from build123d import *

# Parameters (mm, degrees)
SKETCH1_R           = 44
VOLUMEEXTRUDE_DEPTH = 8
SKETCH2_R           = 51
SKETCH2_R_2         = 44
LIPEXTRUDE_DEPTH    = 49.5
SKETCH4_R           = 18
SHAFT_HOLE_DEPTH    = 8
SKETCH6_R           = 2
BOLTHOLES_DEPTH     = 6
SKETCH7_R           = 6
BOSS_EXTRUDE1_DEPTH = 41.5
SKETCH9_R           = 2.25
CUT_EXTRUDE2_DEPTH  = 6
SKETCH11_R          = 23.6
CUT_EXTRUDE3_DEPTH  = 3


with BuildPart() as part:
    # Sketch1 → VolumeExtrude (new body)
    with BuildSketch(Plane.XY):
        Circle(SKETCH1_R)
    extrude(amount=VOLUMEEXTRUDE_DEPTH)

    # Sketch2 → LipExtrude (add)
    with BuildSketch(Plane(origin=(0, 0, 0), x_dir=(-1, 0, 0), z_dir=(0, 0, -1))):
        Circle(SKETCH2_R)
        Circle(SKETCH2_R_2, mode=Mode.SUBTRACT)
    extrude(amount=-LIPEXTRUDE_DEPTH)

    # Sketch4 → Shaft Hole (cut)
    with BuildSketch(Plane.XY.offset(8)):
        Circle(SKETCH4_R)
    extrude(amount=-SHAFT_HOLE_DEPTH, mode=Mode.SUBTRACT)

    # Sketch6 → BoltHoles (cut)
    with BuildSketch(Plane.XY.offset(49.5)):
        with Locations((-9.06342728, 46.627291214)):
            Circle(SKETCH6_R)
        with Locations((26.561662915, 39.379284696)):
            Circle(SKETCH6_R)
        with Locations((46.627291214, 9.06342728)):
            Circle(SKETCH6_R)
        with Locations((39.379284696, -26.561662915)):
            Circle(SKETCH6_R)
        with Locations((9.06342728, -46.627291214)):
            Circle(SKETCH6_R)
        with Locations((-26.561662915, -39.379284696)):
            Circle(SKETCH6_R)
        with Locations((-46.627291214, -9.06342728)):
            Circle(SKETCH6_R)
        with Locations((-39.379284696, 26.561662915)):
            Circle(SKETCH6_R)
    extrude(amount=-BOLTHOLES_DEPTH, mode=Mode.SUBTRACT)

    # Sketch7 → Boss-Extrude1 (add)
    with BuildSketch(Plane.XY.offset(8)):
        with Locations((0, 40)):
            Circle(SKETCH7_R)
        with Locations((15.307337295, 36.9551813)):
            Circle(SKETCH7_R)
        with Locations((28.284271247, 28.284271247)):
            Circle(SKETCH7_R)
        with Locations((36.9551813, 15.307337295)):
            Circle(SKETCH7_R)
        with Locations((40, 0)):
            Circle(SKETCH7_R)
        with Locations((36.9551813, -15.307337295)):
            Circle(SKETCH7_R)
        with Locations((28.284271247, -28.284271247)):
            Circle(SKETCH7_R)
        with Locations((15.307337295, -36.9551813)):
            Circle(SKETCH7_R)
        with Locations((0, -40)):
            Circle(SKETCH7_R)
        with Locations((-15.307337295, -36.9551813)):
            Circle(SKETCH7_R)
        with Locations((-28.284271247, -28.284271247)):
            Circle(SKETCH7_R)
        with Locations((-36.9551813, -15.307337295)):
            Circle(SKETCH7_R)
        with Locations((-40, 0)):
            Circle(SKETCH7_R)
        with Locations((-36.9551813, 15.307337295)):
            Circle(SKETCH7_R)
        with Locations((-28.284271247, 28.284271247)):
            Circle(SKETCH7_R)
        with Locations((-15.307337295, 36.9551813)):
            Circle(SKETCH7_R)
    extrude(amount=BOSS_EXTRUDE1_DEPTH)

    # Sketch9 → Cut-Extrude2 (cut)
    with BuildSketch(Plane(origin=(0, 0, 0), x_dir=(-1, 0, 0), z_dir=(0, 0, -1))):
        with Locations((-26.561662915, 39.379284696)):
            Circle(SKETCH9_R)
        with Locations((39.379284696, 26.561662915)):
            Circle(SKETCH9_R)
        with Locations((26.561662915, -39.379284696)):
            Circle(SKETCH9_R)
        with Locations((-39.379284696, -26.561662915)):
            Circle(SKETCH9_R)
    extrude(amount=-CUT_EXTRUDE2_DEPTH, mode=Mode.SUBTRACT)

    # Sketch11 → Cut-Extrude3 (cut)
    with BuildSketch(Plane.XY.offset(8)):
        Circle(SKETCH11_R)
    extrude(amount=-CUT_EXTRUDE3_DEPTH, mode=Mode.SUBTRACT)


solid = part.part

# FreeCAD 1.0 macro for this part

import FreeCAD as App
import Part
import Sketcher

doc = App.newDocument("Part")
params = doc.addObject("Spreadsheet::Sheet", "Params")
for row, (alias, value) in enumerate([
    ("sketch1_diameter", "88 mm"),
    ("pad1_length", "8 mm"),
    ("sketch2_diameter", "102 mm"),
    ("sketch2_diameter2", "88 mm"),
    ("pad2_length", "49.5 mm"),
    ("sketch3_diameter", "36 mm"),
    ("pocket1_length", "8 mm"),
    ("sketch4_diameter", "4 mm"),
    ("pocket2_length", "6 mm"),
    ("sketch5_diameter", "12 mm"),
    ("pad3_length", "41.5 mm"),
    ("sketch6_diameter", "4.5 mm"),
    ("pocket3_length", "6 mm"),
    ("sketch7_diameter", "47.2 mm"),
    ("pocket4_length", "3 mm"),
], start=1):
    params.set(f"A{row}", alias)
    params.set(f"B{row}", "=" + value)
    params.setAlias(f"B{row}", alias)

body = doc.addObject("PartDesign::Body", "Body")

# Sketch on XY plane
sketch1 = body.newObject("Sketcher::SketchObject", "Sketch")
sketch1.AttachmentSupport = (doc.getObject("XY_Plane"), [""])
sketch1.MapMode = "FlatFace"
sketch1.addGeometry(Part.Circle(App.Vector(0, 0, 0), App.Vector(0, 0, 1), 44), False)
sketch1.addConstraint([
    Sketcher.Constraint("Coincident", 0, 3, -1, 1),
    Sketcher.Constraint("Diameter", 0, 88.0),
])
sketch1.setExpression("Constraints[1]", "Params.sketch1_diameter")
pad1 = body.newObject("PartDesign::Pad", "Pad")
pad1.Profile = sketch1
pad1.setExpression("Length", "Params.pad1_length")

# Sketch on XY plane
sketch2 = body.newObject("Sketcher::SketchObject", "Sketch001")
sketch2.AttachmentSupport = (doc.getObject("XY_Plane"), [""])
sketch2.MapMode = "FlatFace"
sketch2.addGeometry([
    Part.Circle(App.Vector(0, 0, 0), App.Vector(0, 0, 1), 51),
    Part.Circle(App.Vector(0, 0, 0), App.Vector(0, 0, 1), 44),
], False)
sketch2.addConstraint([
    Sketcher.Constraint("Coincident", 0, 3, -1, 1),
    Sketcher.Constraint("Coincident", 1, 3, -1, 1),
    Sketcher.Constraint("Diameter", 0, 102.0),
    Sketcher.Constraint("Diameter", 1, 88.0),
])
sketch2.setExpression("Constraints[2]", "Params.sketch2_diameter")
sketch2.setExpression("Constraints[3]", "Params.sketch2_diameter2")
pad2 = body.newObject("PartDesign::Pad", "Pad001")
pad2.Profile = sketch2
pad2.setExpression("Length", "Params.pad2_length")

# Sketch on XY plane
sketch3 = body.newObject("Sketcher::SketchObject", "Sketch002")
sketch3.AttachmentSupport = (doc.getObject("XY_Plane"), [""])
sketch3.MapMode = "FlatFace"
sketch3.AttachmentOffset = App.Placement(App.Vector(0, 0, 8), App.Rotation())
sketch3.addGeometry(Part.Circle(App.Vector(0, 0, 0), App.Vector(0, 0, 1), 18), False)
sketch3.addConstraint([
    Sketcher.Constraint("Coincident", 0, 3, -1, 1),
    Sketcher.Constraint("Diameter", 0, 36.0),
])
sketch3.setExpression("Constraints[1]", "Params.sketch3_diameter")
pocket1 = body.newObject("PartDesign::Pocket", "Pocket")
pocket1.Profile = sketch3
pocket1.setExpression("Length", "Params.pocket1_length")

# Sketch on XY plane
sketch4 = body.newObject("Sketcher::SketchObject", "Sketch003")
sketch4.AttachmentSupport = (doc.getObject("XY_Plane"), [""])
sketch4.MapMode = "FlatFace"
sketch4.AttachmentOffset = App.Placement(App.Vector(0, 0, 49.5), App.Rotation())
sketch4.addGeometry([
    Part.Circle(App.Vector(-9.1, 46.6, 0), App.Vector(0, 0, 1), 2),  # 0
    Part.Circle(App.Vector(26.6, 39.4, 0), App.Vector(0, 0, 1), 2),  # 1
    Part.Circle(App.Vector(46.6, 9.1, 0), App.Vector(0, 0, 1), 2),  # 2
    Part.Circle(App.Vector(39.4, -26.6, 0), App.Vector(0, 0, 1), 2),  # 3
    Part.Circle(App.Vector(9.1, -46.6, 0), App.Vector(0, 0, 1), 2),  # 4
    Part.Circle(App.Vector(-26.6, -39.4, 0), App.Vector(0, 0, 1), 2),  # 5
    Part.Circle(App.Vector(-46.6, -9.1, 0), App.Vector(0, 0, 1), 2),  # 6
    Part.Circle(App.Vector(-39.4, 26.6, 0), App.Vector(0, 0, 1), 2),  # 7
], False)
sketch4.addConstraint([
    Sketcher.Constraint("Equal", 0, 1),
    Sketcher.Constraint("Equal", 1, 2),
    Sketcher.Constraint("Equal", 2, 3),
    Sketcher.Constraint("Equal", 3, 4),
    Sketcher.Constraint("Equal", 4, 5),
    Sketcher.Constraint("Equal", 5, 6),
    Sketcher.Constraint("Equal", 6, 7),
    Sketcher.Constraint("Symmetric", 0, 3, 4, 3, -1, 1),
    Sketcher.Constraint("Symmetric", 1, 3, 5, 3, -1, 1),
    Sketcher.Constraint("Symmetric", 2, 3, 6, 3, -1, 1),
    Sketcher.Constraint("Symmetric", 3, 3, 7, 3, -1, 1),
    Sketcher.Constraint("Diameter", 0, 4.0),
    Sketcher.Constraint("DistanceY", -1, 1, 0, 3, 46.627291),
    Sketcher.Constraint("DistanceX", -1, 1, 2, 3, 46.627291),
    Sketcher.Constraint("DistanceX", 0, 3, 1, 3, 35.62509),
    Sketcher.Constraint("DistanceX", 1, 3, 2, 3, 20.065628),
    Sketcher.Constraint("DistanceY", 3, 3, 2, 3, 35.62509),
    Sketcher.Constraint("DistanceX", 1, 3, 3, 3, 12.817622),
    Sketcher.Constraint("DistanceY", 4, 3, 3, 3, 20.065628),
    Sketcher.Constraint("DistanceY", 5, 3, 3, 3, 12.817622),
])
sketch4.setExpression("Constraints[11]", "Params.sketch4_diameter")
pocket2 = body.newObject("PartDesign::Pocket", "Pocket001")
pocket2.Profile = sketch4
pocket2.setExpression("Length", "Params.pocket2_length")

# Sketch on XY plane
sketch5 = body.newObject("Sketcher::SketchObject", "Sketch004")
sketch5.AttachmentSupport = (doc.getObject("XY_Plane"), [""])
sketch5.MapMode = "FlatFace"
sketch5.AttachmentOffset = App.Placement(App.Vector(0, 0, 8), App.Rotation())
sketch5.addGeometry([
    Part.Circle(App.Vector(0, 40, 0), App.Vector(0, 0, 1), 6),  # 0
    Part.Circle(App.Vector(15, 37, 0), App.Vector(0, 0, 1), 6),  # 1
    Part.Circle(App.Vector(28, 28, 0), App.Vector(0, 0, 1), 6),  # 2
    Part.Circle(App.Vector(37, 15, 0), App.Vector(0, 0, 1), 6),  # 3
    Part.Circle(App.Vector(40, 0, 0), App.Vector(0, 0, 1), 6),  # 4
    Part.Circle(App.Vector(37, -15, 0), App.Vector(0, 0, 1), 6),  # 5
    Part.Circle(App.Vector(28, -28, 0), App.Vector(0, 0, 1), 6),  # 6
    Part.Circle(App.Vector(15, -37, 0), App.Vector(0, 0, 1), 6),  # 7
    Part.Circle(App.Vector(0, -40, 0), App.Vector(0, 0, 1), 6),  # 8
    Part.Circle(App.Vector(-15, -37, 0), App.Vector(0, 0, 1), 6),  # 9
    Part.Circle(App.Vector(-28, -28, 0), App.Vector(0, 0, 1), 6),  # 10
    Part.Circle(App.Vector(-37, -15, 0), App.Vector(0, 0, 1), 6),  # 11
    Part.Circle(App.Vector(-40, 0, 0), App.Vector(0, 0, 1), 6),  # 12
    Part.Circle(App.Vector(-37, 15, 0), App.Vector(0, 0, 1), 6),  # 13
    Part.Circle(App.Vector(-28, 28, 0), App.Vector(0, 0, 1), 6),  # 14
    Part.Circle(App.Vector(-15, 37, 0), App.Vector(0, 0, 1), 6),  # 15
], False)
sketch5.addConstraint([
    Sketcher.Constraint("Equal", 0, 1),
    Sketcher.Constraint("Equal", 1, 2),
    Sketcher.Constraint("Equal", 2, 3),
    Sketcher.Constraint("Equal", 3, 4),
    Sketcher.Constraint("Equal", 4, 5),
    Sketcher.Constraint("Equal", 5, 6),
    Sketcher.Constraint("Equal", 6, 7),
    Sketcher.Constraint("Equal", 7, 8),
    Sketcher.Constraint("Equal", 8, 9),
    Sketcher.Constraint("Equal", 9, 10),
    Sketcher.Constraint("Equal", 10, 11),
    Sketcher.Constraint("Equal", 11, 12),
    Sketcher.Constraint("Equal", 12, 13),
    Sketcher.Constraint("Equal", 13, 14),
    Sketcher.Constraint("Equal", 14, 15),
    Sketcher.Constraint("Symmetric", 0, 3, 8, 3, -1, 1),
    Sketcher.Constraint("Symmetric", 1, 3, 9, 3, -1, 1),
    Sketcher.Constraint("Symmetric", 2, 3, 10, 3, -1, 1),
    Sketcher.Constraint("Symmetric", 3, 3, 11, 3, -1, 1),
    Sketcher.Constraint("Symmetric", 4, 3, 12, 3, -1, 1),
    Sketcher.Constraint("Symmetric", 5, 3, 13, 3, -1, 1),
    Sketcher.Constraint("Symmetric", 6, 3, 14, 3, -1, 1),
    Sketcher.Constraint("Symmetric", 7, 3, 15, 3, -1, 1),
    Sketcher.Constraint("Symmetric", 7, 3, 9, 3, -2),
    Sketcher.Constraint("Symmetric", 6, 3, 10, 3, -2),
    Sketcher.Constraint("Symmetric", 5, 3, 11, 3, -2),
    Sketcher.Constraint("PointOnObject", 0, 3, -2),
    Sketcher.Constraint("PointOnObject", 4, 3, -1),
    Sketcher.Constraint("Diameter", 0, 12.0),
    Sketcher.Constraint("DistanceY", -1, 1, 0, 3, 40.0),
    Sketcher.Constraint("DistanceX", -1, 1, 4, 3, 40.0),
    Sketcher.Constraint("DistanceY", -1, 1, 1, 3, 36.955181),
    Sketcher.Constraint("DistanceX", -1, 1, 2, 3, 28.284271),
    Sketcher.Constraint("DistanceY", -1, 1, 2, 3, 28.284271),
    Sketcher.Constraint("DistanceX", -1, 1, 3, 3, 36.955181),
    Sketcher.Constraint("DistanceY", 5, 3, 2, 3, 43.591609),
    Sketcher.Constraint("DistanceX", 9, 3, 6, 3, 43.591609),
])
sketch5.setExpression("Constraints[28]", "Params.sketch5_diameter")
pad3 = body.newObject("PartDesign::Pad", "Pad002")
pad3.Profile = sketch5
pad3.setExpression("Length", "Params.pad3_length")

# Sketch on XY plane
sketch6 = body.newObject("Sketcher::SketchObject", "Sketch005")
sketch6.AttachmentSupport = (doc.getObject("XY_Plane"), [""])
sketch6.MapMode = "FlatFace"
sketch6.addGeometry([
    Part.Circle(App.Vector(26.6, 39.4, 0), App.Vector(0, 0, 1), 2.2),
    Part.Circle(App.Vector(-39.4, 26.6, 0), App.Vector(0, 0, 1), 2.2),
    Part.Circle(App.Vector(-26.6, -39.4, 0), App.Vector(0, 0, 1), 2.2),
    Part.Circle(App.Vector(39.4, -26.6, 0), App.Vector(0, 0, 1), 2.2),
], False)
sketch6.addConstraint([
    Sketcher.Constraint("Equal", 0, 1),
    Sketcher.Constraint("Equal", 1, 2),
    Sketcher.Constraint("Equal", 2, 3),
    Sketcher.Constraint("Symmetric", 0, 3, 2, 3, -1, 1),
    Sketcher.Constraint("Symmetric", 1, 3, 3, 3, -1, 1),
    Sketcher.Constraint("Diameter", 0, 4.5),
    Sketcher.Constraint("DistanceY", 1, 3, 0, 3, 12.817622),
    Sketcher.Constraint("DistanceX", 1, 3, 2, 3, 12.817622),
    Sketcher.Constraint("DistanceY", 2, 3, 0, 3, 78.758569),
    Sketcher.Constraint("DistanceX", 1, 3, 3, 3, 78.758569),
])
sketch6.setExpression("Constraints[5]", "Params.sketch6_diameter")
pocket3 = body.newObject("PartDesign::Pocket", "Pocket002")
pocket3.Profile = sketch6
pocket3.setExpression("Length", "Params.pocket3_length")
pocket3.Reversed = True

# Sketch on XY plane
sketch7 = body.newObject("Sketcher::SketchObject", "Sketch006")
sketch7.AttachmentSupport = (doc.getObject("XY_Plane"), [""])
sketch7.MapMode = "FlatFace"
sketch7.AttachmentOffset = App.Placement(App.Vector(0, 0, 8), App.Rotation())
sketch7.addGeometry(Part.Circle(App.Vector(0, 0, 0), App.Vector(0, 0, 1), 24), False)
sketch7.addConstraint([
    Sketcher.Constraint("Coincident", 0, 3, -1, 1),
    Sketcher.Constraint("Diameter", 0, 47.2),
])
sketch7.setExpression("Constraints[1]", "Params.sketch7_diameter")
pocket4 = body.newObject("PartDesign::Pocket", "Pocket003")
pocket4.Profile = sketch7
pocket4.setExpression("Length", "Params.pocket4_length")

doc.recompute()
